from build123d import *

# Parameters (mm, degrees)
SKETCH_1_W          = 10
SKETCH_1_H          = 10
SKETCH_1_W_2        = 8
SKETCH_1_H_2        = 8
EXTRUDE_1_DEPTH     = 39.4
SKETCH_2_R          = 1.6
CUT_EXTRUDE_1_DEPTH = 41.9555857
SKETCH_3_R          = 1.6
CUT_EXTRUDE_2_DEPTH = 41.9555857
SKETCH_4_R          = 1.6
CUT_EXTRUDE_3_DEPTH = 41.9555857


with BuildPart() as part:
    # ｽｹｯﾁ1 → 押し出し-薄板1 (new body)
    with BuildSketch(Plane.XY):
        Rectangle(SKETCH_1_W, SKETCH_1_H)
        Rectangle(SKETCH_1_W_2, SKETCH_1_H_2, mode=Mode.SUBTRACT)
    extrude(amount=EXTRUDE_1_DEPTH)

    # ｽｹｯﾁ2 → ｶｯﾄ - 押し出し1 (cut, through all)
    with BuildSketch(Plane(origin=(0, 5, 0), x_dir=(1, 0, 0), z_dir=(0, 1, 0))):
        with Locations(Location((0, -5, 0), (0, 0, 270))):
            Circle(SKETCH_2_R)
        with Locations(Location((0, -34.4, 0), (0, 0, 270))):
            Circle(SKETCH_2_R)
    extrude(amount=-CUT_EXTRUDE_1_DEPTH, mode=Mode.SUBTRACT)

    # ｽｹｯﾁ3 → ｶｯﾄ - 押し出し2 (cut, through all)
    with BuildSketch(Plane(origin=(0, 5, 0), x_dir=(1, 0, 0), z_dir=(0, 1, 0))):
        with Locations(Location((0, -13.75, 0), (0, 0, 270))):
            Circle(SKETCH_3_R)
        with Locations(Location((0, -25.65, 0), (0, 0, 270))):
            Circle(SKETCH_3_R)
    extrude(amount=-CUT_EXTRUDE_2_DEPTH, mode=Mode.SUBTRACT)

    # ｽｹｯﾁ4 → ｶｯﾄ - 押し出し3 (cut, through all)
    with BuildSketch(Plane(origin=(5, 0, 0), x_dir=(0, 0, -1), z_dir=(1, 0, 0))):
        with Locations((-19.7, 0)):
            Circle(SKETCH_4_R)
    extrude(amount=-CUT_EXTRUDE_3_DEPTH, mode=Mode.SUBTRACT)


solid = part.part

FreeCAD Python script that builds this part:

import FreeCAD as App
import Part
import Sketcher
Q = App.Units.Quantity


def add_polygon(sketch, points):
    """Adds a closed chain of lines whose ends are joined by coincident constraints."""
    first, n = sketch.GeometryCount, len(points)
    for a, b in zip(points, points[1:] + points[:1]):
        sketch.addGeometry(Part.LineSegment(App.Vector(*a, 0), App.Vector(*b, 0)), False)
    for i in range(n):
        sketch.addConstraint(Sketcher.Constraint("Coincident", first + i, 2, first + (i + 1) % n, 1))

doc = App.newDocument("Part")
params = doc.addObject("Spreadsheet::Sheet", "Params")
for row, (alias, value) in enumerate([
    ("sketch1_width", "10 mm"),
    ("sketch1_width2", "8 mm"),
    ("pad1_length", "39.4 mm"),
    ("sketch2_diameter", "3.2 mm"),
    ("sketch3_diameter", "3.2 mm"),
    ("sketch4_diameter", "3.2 mm"),
], start=1):
    params.set(f"A{row}", alias)
    params.set(f"B{row}", "=" + value)
    params.setAlias(f"B{row}", alias)

body = doc.addObject("PartDesign::Body", "Body")

# Sketch on XY plane
sketch1 = body.newObject("Sketcher::SketchObject", "Sketch")
sketch1.AttachmentSupport = (doc.getObject("XY_Plane"), [""])
sketch1.MapMode = "FlatFace"
add_polygon(sketch1, [(-5, 5), (-5, -5), (5, -5), (5, 5)])  # lines 0-3
add_polygon(sketch1, [(4, -4), (-4, -4), (-4, 4), (4, 4)])  # lines 4-7
sketch1.addConstraint(Sketcher.Constraint("Vertical", 0))
sketch1.addConstraint(Sketcher.Constraint("Horizontal", 1))
sketch1.addConstraint(Sketcher.Constraint("Vertical", 2))
sketch1.addConstraint(Sketcher.Constraint("Horizontal", 3))
sketch1.addConstraint(Sketcher.Constraint("Horizontal", 4))
sketch1.addConstraint(Sketcher.Constraint("Vertical", 5))
sketch1.addConstraint(Sketcher.Constraint("Horizontal", 6))
sketch1.addConstraint(Sketcher.Constraint("Vertical", 7))
sketch1.addConstraint(Sketcher.Constraint("Symmetric", 0, 2, 2, 2, -1, 1))
sketch1.addConstraint(Sketcher.Constraint("Symmetric", 4, 2, 6, 2, -1, 1))
sketch1.addConstraint(Sketcher.Constraint("Equal", 3, 0))
sketch1.addConstraint(Sketcher.Constraint("Equal", 6, 5))
sketch1.addConstraint(Sketcher.Constraint("DistanceX", 1, 1, 1, 2, Q("10 mm")))
sketch1.addConstraint(Sketcher.Constraint("DistanceX", 4, 2, 4, 1, Q("8 mm")))
sketch1.setExpression("Constraints[20]", "Params.sketch1_width")
sketch1.setExpression("Constraints[21]", "Params.sketch1_width2")
pad1 = body.newObject("PartDesign::Pad", "Pad")
pad1.Profile = sketch1
pad1.setExpression("Length", "Params.pad1_length")

# Sketch on XZ plane
sketch2 = body.newObject("Sketcher::SketchObject", "Sketch001")
sketch2.AttachmentSupport = (doc.getObject("XZ_Plane"), [""])
sketch2.MapMode = "FlatFace"
sketch2.AttachmentOffset = App.Placement(App.Vector(0, 0, -5), App.Rotation())
sketch2.addGeometry(Part.Circle(App.Vector(0, 5, 0), App.Vector(0, 0, 1), 1.6), False)
sketch2.addGeometry(Part.Circle(App.Vector(0, 34.4, 0), App.Vector(0, 0, 1), 1.6), False)
sketch2.addConstraint(Sketcher.Constraint("Equal", 0, 1))
sketch2.addConstraint(Sketcher.Constraint("PointOnObject", 0, 3, -2))
sketch2.addConstraint(Sketcher.Constraint("PointOnObject", 1, 3, -2))
sketch2.addConstraint(Sketcher.Constraint("Diameter", 0, Q("3.2 mm")))
sketch2.addConstraint(Sketcher.Constraint("DistanceY", -1, 1, 0, 3, Q("5 mm")))
sketch2.addConstraint(Sketcher.Constraint("DistanceY", -1, 1, 1, 3, Q("34.4 mm")))
sketch2.setExpression("Constraints[3]", "Params.sketch2_diameter")
pocket1 = body.newObject("PartDesign::Pocket", "Pocket")
pocket1.Profile = sketch2
pocket1.Type = "ThroughAll"
pocket1.Reversed = True

# Sketch on XZ plane
sketch3 = body.newObject("Sketcher::SketchObject", "Sketch002")
sketch3.AttachmentSupport = (doc.getObject("XZ_Plane"), [""])
sketch3.MapMode = "FlatFace"
sketch3.AttachmentOffset = App.Placement(App.Vector(0, 0, -5), App.Rotation())
sketch3.addGeometry(Part.Circle(App.Vector(0, 13.8, 0), App.Vector(0, 0, 1), 1.6), False)
sketch3.addGeometry(Part.Circle(App.Vector(0, 25.6, 0), App.Vector(0, 0, 1), 1.6), False)
sketch3.addConstraint(Sketcher.Constraint("Equal", 0, 1))
sketch3.addConstraint(Sketcher.Constraint("PointOnObject", 0, 3, -2))
sketch3.addConstraint(Sketcher.Constraint("PointOnObject", 1, 3, -2))
sketch3.addConstraint(Sketcher.Constraint("Diameter", 0, Q("3.2 mm")))
sketch3.addConstraint(Sketcher.Constraint("DistanceY", 0, 3, 1, 3, Q("11.9 mm")))
sketch3.addConstraint(Sketcher.Constraint("DistanceY", -1, 1, 0, 3, Q("13.75 mm")))
sketch3.setExpression("Constraints[3]", "Params.sketch3_diameter")
pocket2 = body.newObject("PartDesign::Pocket", "Pocket001")
pocket2.Profile = sketch3
pocket2.Type = "ThroughAll"
pocket2.Reversed = True

# Sketch on YZ plane
sketch4 = body.newObject("Sketcher::SketchObject", "Sketch003")
sketch4.AttachmentSupport = (doc.getObject("YZ_Plane"), [""])
sketch4.MapMode = "FlatFace"
sketch4.AttachmentOffset = App.Placement(App.Vector(0, 0, 5), App.Rotation())
sketch4.addGeometry(Part.Circle(App.Vector(0, 19.7, 0), App.Vector(0, 0, 1), 1.6), False)
sketch4.addConstraint(Sketcher.Constraint("PointOnObject", 0, 3, -2))
sketch4.addConstraint(Sketcher.Constraint("Diameter", 0, Q("3.2 mm")))
sketch4.addConstraint(Sketcher.Constraint("DistanceY", -1, 1, 0, 3, Q("19.7 mm")))
sketch4.setExpression("Constraints[1]", "Params.sketch4_diameter")
pocket3 = body.newObject("PartDesign::Pocket", "Pocket002")
pocket3.Profile = sketch4
pocket3.Type = "ThroughAll"

doc.recompute()
